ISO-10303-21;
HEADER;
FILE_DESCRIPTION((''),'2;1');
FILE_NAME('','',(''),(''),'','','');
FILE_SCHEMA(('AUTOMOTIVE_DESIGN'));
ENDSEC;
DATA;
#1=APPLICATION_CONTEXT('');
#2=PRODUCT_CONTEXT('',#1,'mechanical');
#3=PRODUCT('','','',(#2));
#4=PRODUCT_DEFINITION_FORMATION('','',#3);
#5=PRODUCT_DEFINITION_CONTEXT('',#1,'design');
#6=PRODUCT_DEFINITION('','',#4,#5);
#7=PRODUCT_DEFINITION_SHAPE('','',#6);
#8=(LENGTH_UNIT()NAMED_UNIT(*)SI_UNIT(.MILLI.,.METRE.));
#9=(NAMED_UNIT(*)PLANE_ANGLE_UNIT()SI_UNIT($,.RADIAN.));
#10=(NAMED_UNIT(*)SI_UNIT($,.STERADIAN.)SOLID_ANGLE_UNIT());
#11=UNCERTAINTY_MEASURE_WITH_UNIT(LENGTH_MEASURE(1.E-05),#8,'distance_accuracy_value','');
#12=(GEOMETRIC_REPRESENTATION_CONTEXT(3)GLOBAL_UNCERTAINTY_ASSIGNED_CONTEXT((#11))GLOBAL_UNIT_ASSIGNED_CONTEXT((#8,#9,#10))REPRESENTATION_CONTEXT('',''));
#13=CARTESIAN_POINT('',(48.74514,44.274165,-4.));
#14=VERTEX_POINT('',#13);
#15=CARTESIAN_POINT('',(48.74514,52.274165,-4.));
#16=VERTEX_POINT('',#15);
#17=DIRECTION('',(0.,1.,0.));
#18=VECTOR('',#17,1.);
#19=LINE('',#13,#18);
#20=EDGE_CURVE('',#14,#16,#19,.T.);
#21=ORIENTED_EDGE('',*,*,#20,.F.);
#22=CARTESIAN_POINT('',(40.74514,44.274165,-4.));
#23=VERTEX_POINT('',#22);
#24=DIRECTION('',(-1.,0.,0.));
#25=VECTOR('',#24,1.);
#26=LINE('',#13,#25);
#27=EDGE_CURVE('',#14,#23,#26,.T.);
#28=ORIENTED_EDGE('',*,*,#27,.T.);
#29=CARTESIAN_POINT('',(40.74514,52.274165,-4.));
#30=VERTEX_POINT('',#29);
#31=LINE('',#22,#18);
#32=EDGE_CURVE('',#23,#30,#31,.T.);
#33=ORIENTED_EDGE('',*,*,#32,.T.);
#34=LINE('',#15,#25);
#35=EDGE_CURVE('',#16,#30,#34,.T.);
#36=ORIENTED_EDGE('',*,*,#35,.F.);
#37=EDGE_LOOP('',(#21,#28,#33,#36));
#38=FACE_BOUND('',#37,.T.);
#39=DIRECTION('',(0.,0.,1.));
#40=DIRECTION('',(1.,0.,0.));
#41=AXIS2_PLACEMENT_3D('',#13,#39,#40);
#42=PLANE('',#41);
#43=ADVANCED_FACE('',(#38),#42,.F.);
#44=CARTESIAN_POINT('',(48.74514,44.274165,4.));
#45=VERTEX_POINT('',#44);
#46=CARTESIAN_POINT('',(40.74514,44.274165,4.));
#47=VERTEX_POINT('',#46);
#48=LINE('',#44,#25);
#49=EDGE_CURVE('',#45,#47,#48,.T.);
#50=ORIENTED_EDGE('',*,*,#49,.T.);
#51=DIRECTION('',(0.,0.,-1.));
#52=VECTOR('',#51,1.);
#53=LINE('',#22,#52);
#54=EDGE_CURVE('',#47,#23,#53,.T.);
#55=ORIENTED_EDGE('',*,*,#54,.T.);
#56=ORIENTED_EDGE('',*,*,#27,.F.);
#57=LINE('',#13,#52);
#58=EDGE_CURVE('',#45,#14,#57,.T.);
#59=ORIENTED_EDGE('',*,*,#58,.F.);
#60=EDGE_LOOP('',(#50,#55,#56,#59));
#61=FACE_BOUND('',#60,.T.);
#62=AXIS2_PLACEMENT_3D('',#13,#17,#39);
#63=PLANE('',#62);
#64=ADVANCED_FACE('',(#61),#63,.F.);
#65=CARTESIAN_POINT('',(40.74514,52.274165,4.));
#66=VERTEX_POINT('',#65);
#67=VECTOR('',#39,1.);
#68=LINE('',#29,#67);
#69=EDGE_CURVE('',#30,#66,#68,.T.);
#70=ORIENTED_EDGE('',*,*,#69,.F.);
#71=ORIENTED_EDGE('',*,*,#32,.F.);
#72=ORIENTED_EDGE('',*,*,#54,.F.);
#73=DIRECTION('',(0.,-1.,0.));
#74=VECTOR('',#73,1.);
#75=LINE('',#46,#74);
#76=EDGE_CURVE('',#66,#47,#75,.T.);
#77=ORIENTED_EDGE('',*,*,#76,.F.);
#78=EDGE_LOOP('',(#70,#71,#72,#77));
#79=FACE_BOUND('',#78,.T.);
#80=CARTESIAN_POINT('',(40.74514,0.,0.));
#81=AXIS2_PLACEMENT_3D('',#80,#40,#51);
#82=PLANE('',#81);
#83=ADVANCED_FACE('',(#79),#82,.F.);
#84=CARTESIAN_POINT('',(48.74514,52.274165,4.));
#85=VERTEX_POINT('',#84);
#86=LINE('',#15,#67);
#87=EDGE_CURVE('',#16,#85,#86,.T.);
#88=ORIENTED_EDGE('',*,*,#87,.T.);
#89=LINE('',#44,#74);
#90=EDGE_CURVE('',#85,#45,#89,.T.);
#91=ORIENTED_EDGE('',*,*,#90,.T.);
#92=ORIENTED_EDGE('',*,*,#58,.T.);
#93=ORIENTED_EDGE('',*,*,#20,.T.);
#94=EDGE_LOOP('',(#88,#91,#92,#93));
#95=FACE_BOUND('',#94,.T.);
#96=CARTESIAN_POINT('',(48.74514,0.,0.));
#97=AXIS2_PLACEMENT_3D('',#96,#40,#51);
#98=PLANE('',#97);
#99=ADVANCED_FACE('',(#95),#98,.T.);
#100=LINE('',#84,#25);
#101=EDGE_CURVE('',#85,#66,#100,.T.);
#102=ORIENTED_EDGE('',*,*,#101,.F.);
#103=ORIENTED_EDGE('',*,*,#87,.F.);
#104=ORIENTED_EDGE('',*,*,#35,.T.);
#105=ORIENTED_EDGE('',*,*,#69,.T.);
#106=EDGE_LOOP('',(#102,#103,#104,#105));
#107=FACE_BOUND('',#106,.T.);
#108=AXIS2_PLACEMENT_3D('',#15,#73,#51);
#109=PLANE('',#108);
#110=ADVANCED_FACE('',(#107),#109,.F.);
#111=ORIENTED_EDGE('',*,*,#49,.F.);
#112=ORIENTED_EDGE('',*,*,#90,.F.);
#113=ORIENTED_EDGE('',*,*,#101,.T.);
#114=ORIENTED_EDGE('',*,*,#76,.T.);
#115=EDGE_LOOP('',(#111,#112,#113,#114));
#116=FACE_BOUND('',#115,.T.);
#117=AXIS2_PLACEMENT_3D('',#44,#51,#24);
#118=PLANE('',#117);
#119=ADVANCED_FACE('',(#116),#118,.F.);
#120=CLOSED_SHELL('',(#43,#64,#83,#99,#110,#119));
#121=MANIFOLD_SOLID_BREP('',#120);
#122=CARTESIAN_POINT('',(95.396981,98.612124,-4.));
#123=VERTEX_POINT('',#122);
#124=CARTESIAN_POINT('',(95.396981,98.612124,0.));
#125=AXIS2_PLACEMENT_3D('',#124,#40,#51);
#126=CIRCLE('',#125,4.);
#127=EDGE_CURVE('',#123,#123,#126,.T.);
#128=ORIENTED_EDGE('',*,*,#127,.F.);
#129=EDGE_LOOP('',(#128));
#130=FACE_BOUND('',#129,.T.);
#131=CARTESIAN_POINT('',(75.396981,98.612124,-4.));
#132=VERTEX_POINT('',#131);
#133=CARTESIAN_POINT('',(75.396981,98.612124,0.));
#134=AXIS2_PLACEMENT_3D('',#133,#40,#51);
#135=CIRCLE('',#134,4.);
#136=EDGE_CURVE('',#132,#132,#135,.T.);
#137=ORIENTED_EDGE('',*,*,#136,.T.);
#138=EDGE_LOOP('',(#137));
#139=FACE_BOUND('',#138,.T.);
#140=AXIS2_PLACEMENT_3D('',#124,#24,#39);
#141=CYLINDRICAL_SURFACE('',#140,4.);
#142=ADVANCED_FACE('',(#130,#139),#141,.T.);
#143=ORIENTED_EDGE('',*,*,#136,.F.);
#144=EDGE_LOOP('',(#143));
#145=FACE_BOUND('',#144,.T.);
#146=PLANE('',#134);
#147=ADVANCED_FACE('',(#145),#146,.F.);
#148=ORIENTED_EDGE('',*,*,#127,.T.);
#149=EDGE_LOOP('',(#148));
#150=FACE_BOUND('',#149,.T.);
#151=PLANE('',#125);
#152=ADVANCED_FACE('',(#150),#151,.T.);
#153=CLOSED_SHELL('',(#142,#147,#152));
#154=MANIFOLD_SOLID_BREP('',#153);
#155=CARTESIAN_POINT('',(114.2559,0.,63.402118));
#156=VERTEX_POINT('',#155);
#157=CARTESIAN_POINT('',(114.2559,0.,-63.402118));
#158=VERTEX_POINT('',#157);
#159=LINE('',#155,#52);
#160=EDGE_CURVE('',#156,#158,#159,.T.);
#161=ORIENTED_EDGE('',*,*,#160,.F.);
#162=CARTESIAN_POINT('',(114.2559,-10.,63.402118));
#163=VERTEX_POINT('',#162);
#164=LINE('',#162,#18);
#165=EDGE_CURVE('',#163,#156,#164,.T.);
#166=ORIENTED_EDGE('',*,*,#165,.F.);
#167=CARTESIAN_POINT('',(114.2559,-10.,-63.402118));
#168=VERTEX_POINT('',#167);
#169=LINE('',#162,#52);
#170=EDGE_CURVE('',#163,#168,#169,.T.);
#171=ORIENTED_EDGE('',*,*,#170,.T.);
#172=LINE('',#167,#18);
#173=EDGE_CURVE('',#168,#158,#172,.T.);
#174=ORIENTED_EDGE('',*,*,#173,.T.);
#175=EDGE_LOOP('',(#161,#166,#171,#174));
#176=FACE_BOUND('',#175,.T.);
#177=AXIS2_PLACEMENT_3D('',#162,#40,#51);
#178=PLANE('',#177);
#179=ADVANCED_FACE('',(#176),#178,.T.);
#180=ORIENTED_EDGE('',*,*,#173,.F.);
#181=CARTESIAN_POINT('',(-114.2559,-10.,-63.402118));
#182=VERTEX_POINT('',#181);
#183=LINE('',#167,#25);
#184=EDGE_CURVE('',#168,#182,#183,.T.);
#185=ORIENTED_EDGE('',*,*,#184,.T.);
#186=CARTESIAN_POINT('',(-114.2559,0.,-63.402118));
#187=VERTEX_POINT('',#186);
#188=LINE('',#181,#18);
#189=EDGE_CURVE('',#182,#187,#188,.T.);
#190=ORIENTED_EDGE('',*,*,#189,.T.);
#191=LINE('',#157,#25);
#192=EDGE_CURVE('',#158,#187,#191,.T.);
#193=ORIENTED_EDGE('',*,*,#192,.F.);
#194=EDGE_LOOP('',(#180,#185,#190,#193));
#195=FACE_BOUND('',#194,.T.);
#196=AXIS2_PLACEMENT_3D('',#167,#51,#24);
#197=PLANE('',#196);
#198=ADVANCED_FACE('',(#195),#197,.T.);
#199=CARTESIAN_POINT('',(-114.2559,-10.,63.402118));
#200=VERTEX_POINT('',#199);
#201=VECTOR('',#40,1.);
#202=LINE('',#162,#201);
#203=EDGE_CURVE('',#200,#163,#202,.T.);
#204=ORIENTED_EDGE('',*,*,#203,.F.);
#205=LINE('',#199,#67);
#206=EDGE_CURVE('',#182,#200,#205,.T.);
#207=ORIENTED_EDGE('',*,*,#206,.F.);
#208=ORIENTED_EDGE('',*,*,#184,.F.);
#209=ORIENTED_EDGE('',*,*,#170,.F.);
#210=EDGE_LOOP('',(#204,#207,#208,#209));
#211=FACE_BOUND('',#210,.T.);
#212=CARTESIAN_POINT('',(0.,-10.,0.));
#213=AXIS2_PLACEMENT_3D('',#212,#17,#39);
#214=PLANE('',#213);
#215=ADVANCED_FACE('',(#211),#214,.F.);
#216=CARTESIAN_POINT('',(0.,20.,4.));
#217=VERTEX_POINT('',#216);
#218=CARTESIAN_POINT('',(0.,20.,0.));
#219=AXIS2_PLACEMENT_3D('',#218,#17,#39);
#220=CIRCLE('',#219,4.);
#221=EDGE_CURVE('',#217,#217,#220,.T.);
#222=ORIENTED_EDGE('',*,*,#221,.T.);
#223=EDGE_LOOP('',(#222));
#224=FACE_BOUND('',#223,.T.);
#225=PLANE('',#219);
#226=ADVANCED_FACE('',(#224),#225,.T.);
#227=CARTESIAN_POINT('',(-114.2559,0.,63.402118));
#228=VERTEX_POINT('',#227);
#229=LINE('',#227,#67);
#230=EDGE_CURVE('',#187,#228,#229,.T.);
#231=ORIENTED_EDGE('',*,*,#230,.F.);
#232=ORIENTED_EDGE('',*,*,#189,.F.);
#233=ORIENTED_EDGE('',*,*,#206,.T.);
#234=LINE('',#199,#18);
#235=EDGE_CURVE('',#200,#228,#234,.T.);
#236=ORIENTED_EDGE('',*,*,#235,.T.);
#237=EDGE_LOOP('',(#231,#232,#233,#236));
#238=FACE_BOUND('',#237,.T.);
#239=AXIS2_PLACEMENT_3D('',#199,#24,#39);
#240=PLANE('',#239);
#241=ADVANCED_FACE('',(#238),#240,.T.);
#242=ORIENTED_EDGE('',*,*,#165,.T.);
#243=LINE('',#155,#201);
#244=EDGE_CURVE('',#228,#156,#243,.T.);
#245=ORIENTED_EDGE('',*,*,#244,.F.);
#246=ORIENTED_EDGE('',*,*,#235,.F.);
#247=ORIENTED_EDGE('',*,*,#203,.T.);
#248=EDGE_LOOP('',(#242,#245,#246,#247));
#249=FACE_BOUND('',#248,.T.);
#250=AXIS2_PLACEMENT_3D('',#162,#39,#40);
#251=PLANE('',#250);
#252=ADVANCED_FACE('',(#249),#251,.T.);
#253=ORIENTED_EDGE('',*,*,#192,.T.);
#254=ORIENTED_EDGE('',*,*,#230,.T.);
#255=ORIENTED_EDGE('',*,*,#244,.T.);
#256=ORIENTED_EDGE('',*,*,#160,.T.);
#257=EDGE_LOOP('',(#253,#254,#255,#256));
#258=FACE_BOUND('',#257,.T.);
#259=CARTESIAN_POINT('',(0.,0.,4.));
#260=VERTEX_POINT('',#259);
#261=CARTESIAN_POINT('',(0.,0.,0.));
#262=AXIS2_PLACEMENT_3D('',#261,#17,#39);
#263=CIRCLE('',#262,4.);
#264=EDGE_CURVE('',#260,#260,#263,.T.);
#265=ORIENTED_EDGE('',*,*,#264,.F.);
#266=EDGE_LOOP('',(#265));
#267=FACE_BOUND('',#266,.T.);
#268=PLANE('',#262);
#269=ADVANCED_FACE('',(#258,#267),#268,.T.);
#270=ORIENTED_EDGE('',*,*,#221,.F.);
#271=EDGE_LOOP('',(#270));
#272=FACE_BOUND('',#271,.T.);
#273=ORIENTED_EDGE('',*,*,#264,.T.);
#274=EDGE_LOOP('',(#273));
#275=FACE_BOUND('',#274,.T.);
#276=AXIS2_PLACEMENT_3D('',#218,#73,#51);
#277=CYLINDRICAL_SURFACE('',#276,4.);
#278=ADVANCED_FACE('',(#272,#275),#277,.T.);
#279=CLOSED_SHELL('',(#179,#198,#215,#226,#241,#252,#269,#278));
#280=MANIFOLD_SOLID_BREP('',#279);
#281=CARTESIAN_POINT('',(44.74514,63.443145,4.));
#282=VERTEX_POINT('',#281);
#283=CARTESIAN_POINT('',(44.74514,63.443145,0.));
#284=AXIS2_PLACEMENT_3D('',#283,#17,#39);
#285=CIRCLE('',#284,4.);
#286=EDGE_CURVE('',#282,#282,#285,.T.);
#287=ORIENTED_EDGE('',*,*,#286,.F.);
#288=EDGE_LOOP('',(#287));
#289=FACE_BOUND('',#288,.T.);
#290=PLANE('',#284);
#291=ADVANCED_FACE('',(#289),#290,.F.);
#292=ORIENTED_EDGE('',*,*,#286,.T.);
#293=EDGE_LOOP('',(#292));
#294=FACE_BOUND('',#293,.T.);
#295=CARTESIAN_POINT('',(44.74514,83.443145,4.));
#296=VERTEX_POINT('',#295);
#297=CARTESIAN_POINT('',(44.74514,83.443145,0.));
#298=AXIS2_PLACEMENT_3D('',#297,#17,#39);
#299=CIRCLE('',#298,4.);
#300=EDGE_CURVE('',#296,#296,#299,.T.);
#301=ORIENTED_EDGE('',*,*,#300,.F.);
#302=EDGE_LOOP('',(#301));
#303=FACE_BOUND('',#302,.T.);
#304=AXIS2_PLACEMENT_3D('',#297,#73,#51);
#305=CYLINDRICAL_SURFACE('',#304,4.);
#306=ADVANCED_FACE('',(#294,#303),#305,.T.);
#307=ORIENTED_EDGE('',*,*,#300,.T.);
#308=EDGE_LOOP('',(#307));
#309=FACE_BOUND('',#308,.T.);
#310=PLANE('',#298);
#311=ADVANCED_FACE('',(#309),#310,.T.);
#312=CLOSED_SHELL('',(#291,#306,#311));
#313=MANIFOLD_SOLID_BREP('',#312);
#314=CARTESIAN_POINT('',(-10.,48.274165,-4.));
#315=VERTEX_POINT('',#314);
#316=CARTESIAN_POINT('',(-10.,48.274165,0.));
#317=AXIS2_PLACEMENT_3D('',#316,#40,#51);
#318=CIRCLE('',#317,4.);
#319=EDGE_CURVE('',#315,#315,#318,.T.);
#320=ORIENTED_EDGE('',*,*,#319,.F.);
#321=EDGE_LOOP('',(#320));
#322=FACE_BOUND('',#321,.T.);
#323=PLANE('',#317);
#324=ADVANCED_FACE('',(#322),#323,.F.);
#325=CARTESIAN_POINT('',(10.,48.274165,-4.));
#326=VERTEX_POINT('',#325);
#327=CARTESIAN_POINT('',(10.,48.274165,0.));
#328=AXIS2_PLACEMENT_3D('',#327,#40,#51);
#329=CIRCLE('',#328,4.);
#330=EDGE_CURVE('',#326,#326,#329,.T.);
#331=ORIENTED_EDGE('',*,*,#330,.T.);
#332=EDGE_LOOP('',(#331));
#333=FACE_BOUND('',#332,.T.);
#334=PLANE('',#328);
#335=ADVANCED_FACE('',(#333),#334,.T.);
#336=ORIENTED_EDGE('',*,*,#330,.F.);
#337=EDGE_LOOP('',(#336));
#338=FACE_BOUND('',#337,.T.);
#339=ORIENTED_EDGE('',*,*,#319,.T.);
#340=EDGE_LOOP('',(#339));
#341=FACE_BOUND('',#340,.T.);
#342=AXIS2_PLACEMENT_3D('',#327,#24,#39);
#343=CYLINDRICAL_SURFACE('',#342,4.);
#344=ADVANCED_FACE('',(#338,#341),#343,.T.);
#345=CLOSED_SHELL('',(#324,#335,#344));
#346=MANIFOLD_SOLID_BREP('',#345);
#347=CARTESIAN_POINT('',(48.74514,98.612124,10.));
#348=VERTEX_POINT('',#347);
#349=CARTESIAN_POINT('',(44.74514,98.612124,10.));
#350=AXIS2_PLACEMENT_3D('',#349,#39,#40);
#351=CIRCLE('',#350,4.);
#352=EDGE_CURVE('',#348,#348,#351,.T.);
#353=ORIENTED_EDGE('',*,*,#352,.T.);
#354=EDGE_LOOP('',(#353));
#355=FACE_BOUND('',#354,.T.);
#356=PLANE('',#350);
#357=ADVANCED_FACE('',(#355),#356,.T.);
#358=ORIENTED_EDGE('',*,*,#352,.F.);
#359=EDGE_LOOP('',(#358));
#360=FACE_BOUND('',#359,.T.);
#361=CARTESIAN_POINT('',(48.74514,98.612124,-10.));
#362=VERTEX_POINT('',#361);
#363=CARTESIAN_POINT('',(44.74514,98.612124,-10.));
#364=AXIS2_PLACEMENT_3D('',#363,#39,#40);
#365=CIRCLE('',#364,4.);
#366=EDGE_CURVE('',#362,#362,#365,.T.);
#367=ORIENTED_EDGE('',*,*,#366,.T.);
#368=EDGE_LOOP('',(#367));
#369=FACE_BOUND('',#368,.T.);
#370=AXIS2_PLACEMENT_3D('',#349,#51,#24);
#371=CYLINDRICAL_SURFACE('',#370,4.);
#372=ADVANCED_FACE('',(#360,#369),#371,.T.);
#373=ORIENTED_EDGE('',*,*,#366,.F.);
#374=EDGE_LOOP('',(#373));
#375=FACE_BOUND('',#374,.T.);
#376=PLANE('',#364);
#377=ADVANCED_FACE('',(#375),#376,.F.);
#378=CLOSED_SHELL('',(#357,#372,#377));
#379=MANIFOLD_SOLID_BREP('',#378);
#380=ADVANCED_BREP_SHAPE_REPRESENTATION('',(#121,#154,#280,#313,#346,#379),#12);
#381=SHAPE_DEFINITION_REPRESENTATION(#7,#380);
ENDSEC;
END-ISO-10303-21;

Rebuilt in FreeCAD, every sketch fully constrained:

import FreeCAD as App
import Part
import Sketcher
Q = App.Units.Quantity


def add_polygon(sketch, points):
    """Adds a closed chain of lines whose ends are joined by coincident constraints."""
    first, n = sketch.GeometryCount, len(points)
    for a, b in zip(points, points[1:] + points[:1]):
        sketch.addGeometry(Part.LineSegment(App.Vector(*a, 0), App.Vector(*b, 0)), False)
    for i in range(n):
        sketch.addConstraint(Sketcher.Constraint("Coincident", first + i, 2, first + (i + 1) % n, 1))

doc = App.newDocument("Part")
body = doc.addObject("PartDesign::Body", "Body")

# Sketch on XZ plane
sketch1 = body.newObject("Sketcher::SketchObject", "Sketch")
sketch1.AttachmentSupport = (doc.getObject("XZ_Plane"), [""])
sketch1.MapMode = "FlatFace"
add_polygon(sketch1, [(-114, -63), (-114, 63), (114, 63), (114, -63)])  # lines 0-3
sketch1.addConstraint(Sketcher.Constraint("Vertical", 0))
sketch1.addConstraint(Sketcher.Constraint("Horizontal", 1))
sketch1.addConstraint(Sketcher.Constraint("Vertical", 2))
sketch1.addConstraint(Sketcher.Constraint("Horizontal", 3))
sketch1.addConstraint(Sketcher.Constraint("Symmetric", 0, 2, 2, 2, -1, 1))
sketch1.addConstraint(Sketcher.Constraint("DistanceX", 1, 1, 1, 2, Q("228.5118 mm")))
sketch1.addConstraint(Sketcher.Constraint("DistanceY", 0, 1, 0, 2, Q("126.804236 mm")))
pad1 = body.newObject("PartDesign::Pad", "Pad")
pad1.Profile = sketch1
pad1.Length = 10

# Sketch on XZ plane
sketch2 = body.newObject("Sketcher::SketchObject", "Sketch001")
sketch2.AttachmentSupport = (doc.getObject("XZ_Plane"), [""])
sketch2.MapMode = "FlatFace"
sketch2.addGeometry(Part.Circle(App.Vector(0, 0, 0), App.Vector(0, 0, 1), 4), False)
sketch2.addConstraint(Sketcher.Constraint("Coincident", 0, 3, -1, 1))
sketch2.addConstraint(Sketcher.Constraint("Diameter", 0, Q("8 mm")))
pad2 = body.newObject("PartDesign::Pad", "Pad001")
pad2.Profile = sketch2
pad2.Length = 20
pad2.Reversed = True
body2 = doc.addObject("PartDesign::Body", "Body001")

# Sketch on YZ plane
sketch3 = body2.newObject("Sketcher::SketchObject", "Sketch002")
sketch3.AttachmentSupport = (doc.getObject("YZ_Plane001"), [""])
sketch3.MapMode = "FlatFace"
sketch3.addGeometry(Part.Circle(App.Vector(48.3, 0, 0), App.Vector(0, 0, 1), 4), False)
sketch3.addConstraint(Sketcher.Constraint("PointOnObject", 0, 3, -1))
sketch3.addConstraint(Sketcher.Constraint("Diameter", 0, Q("8 mm")))
sketch3.addConstraint(Sketcher.Constraint("DistanceX", -1, 1, 0, 3, Q("48.274165 mm")))
pad3 = body2.newObject("PartDesign::Pad", "Pad002")
pad3.Profile = sketch3
pad3.Length = 20
pad3.Midplane = True
body3 = doc.addObject("PartDesign::Body", "Body002")

# Sketch on YZ plane
sketch4 = body3.newObject("Sketcher::SketchObject", "Sketch003")
sketch4.AttachmentSupport = (doc.getObject("YZ_Plane002"), [""])
sketch4.MapMode = "FlatFace"
sketch4.AttachmentOffset = App.Placement(App.Vector(0, 0, 44.74514), App.Rotation())
add_polygon(sketch4, [(52, 4), (44, 4), (44, -4), (52, -4)])  # lines 0-3
sketch4.addConstraint(Sketcher.Constraint("Horizontal", 0))
sketch4.addConstraint(Sketcher.Constraint("Vertical", 1))
sketch4.addConstraint(Sketcher.Constraint("Horizontal", 2))
sketch4.addConstraint(Sketcher.Constraint("Vertical", 3))
sketch4.addConstraint(Sketcher.Constraint("Equal", 2, 1))
sketch4.addConstraint(Sketcher.Constraint("DistanceX", 0, 2, 0, 1, Q("8 mm")))
sketch4.addConstraint(Sketcher.Constraint("DistanceY", -1, 1, 0, 2, Q("4 mm")))
sketch4.addConstraint(Sketcher.Constraint("DistanceX", -1, 1, 0, 2, Q("44.274165 mm")))
pad4 = body3.newObject("PartDesign::Pad", "Pad003")
pad4.Profile = sketch4
pad4.Length = 8
pad4.Midplane = True
body4 = doc.addObject("PartDesign::Body", "Body003")

# Sketch on XZ plane
sketch5 = body4.newObject("Sketcher::SketchObject", "Sketch004")
sketch5.AttachmentSupport = (doc.getObject("XZ_Plane003"), [""])
sketch5.MapMode = "FlatFace"
sketch5.AttachmentOffset = App.Placement(App.Vector(0, 0, -73.443145), App.Rotation())
sketch5.addGeometry(Part.Circle(App.Vector(44.7, 0, 0), App.Vector(0, 0, 1), 4), False)
sketch5.addConstraint(Sketcher.Constraint("PointOnObject", 0, 3, -1))
sketch5.addConstraint(Sketcher.Constraint("Diameter", 0, Q("8 mm")))
sketch5.addConstraint(Sketcher.Constraint("DistanceX", -1, 1, 0, 3, Q("44.74514 mm")))
pad5 = body4.newObject("PartDesign::Pad", "Pad004")
pad5.Profile = sketch5
pad5.Length = 20
pad5.Midplane = True
body5 = doc.addObject("PartDesign::Body", "Body004")

# Sketch on XY plane
sketch6 = body5.newObject("Sketcher::SketchObject", "Sketch005")
sketch6.AttachmentSupport = (doc.getObject("XY_Plane004"), [""])
sketch6.MapMode = "FlatFace"
sketch6.addGeometry(Part.Circle(App.Vector(44.7, 98.6, 0), App.Vector(0, 0, 1), 4), False)
sketch6.addConstraint(Sketcher.Constraint("Diameter", 0, Q("8 mm")))
sketch6.addConstraint(Sketcher.Constraint("DistanceX", -1, 1, 0, 3, Q("44.74514 mm")))
sketch6.addConstraint(Sketcher.Constraint("DistanceY", -1, 1, 0, 3, Q("98.612124 mm")))
pad6 = body5.newObject("PartDesign::Pad", "Pad005")
pad6.Profile = sketch6
pad6.Length = 20
pad6.Midplane = True
body6 = doc.addObject("PartDesign::Body", "Body005")

# Sketch on YZ plane
sketch7 = body6.newObject("Sketcher::SketchObject", "Sketch006")
sketch7.AttachmentSupport = (doc.getObject("YZ_Plane005"), [""])
sketch7.MapMode = "FlatFace"
sketch7.AttachmentOffset = App.Placement(App.Vector(0, 0, 85.396981), App.Rotation())
sketch7.addGeometry(Part.Circle(App.Vector(98.6, 0, 0), App.Vector(0, 0, 1), 4), False)
sketch7.addConstraint(Sketcher.Constraint("PointOnObject", 0, 3, -1))
sketch7.addConstraint(Sketcher.Constraint("Diameter", 0, Q("8 mm")))
sketch7.addConstraint(Sketcher.Constraint("DistanceX", -1, 1, 0, 3, Q("98.612124 mm")))
pad7 = body6.newObject("PartDesign::Pad", "Pad006")
pad7.Profile = sketch7
pad7.Length = 20
pad7.Midplane = True

doc.recompute()
